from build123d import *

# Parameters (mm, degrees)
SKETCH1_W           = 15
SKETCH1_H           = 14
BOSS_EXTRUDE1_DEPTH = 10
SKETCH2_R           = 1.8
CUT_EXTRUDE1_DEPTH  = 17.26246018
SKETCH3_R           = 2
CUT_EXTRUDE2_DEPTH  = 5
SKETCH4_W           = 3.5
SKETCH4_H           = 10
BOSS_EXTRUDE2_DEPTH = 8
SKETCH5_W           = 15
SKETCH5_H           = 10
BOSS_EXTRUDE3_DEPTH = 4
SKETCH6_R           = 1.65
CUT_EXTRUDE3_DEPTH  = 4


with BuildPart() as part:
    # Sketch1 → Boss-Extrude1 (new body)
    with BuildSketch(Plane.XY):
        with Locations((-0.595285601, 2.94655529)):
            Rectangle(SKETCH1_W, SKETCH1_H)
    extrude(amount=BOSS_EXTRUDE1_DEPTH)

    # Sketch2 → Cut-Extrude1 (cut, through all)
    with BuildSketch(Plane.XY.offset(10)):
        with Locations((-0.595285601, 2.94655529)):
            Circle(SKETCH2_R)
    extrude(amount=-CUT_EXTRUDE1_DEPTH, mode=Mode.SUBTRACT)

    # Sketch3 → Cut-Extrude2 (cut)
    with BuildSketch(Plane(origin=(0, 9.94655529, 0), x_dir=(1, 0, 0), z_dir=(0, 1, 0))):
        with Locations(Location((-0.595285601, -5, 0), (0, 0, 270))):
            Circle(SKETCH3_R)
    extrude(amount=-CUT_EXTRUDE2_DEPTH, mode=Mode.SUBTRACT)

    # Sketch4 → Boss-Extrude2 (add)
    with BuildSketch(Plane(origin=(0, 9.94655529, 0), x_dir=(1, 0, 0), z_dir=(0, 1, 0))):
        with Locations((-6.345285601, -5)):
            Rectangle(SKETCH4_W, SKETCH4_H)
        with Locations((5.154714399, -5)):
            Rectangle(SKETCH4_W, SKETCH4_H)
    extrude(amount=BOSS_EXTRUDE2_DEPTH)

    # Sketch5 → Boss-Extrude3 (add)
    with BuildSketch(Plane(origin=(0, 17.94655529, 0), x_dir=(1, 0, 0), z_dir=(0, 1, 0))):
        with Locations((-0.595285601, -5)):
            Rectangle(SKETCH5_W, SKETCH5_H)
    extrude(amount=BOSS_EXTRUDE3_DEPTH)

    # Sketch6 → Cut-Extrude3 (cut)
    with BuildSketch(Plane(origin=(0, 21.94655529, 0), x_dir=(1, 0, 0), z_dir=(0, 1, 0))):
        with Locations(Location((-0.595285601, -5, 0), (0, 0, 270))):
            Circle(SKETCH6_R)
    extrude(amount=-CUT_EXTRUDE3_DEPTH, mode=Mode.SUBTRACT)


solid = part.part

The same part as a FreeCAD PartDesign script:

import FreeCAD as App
import Part
import Sketcher
from FreeCAD import Vector


def add_polygon(sketch, points):
    """Adds a closed chain of lines whose ends are joined by coincident constraints."""
    first, n = sketch.GeometryCount, len(points)
    for a, b in zip(points, points[1:] + points[:1]):
        sketch.addGeometry(Part.LineSegment(App.Vector(*a, 0), App.Vector(*b, 0)), False)
    for i in range(n):
        sketch.addConstraint(Sketcher.Constraint("Coincident", first + i, 2, first + (i + 1) % n, 1))

doc = App.newDocument("Part")
body = doc.addObject("PartDesign::Body", "Body")

# Sketch on XY plane
sketch1 = body.newObject("Sketcher::SketchObject", "Sketch")
sketch1.AttachmentSupport = (doc.getObject("XY_Plane"), [""])
sketch1.MapMode = "FlatFace"
add_polygon(sketch1, [(-8.095286, 9.946555), (-8.095286, -4.053445), (6.904714, -4.053445), (6.904714, 9.946555)])  # lines 0-3
sketch1.addConstraint(Sketcher.Constraint("Vertical", 0))
sketch1.addConstraint(Sketcher.Constraint("Horizontal", 1))
sketch1.addConstraint(Sketcher.Constraint("Vertical", 2))
sketch1.addConstraint(Sketcher.Constraint("Horizontal", 3))
sketch1.addConstraint(Sketcher.Constraint("DistanceX", 1, 1, 1, 2, 15.0))
sketch1.addConstraint(Sketcher.Constraint("DistanceY", 0, 2, 0, 1, 14.0))
sketch1.addConstraint(Sketcher.Constraint("DistanceX", 0, 2, -1, 1, 8.095286))
sketch1.addConstraint(Sketcher.Constraint("DistanceY", 0, 2, -1, 1, 4.053445))
pad1 = body.newObject("PartDesign::Pad", "Pad")
pad1.Profile = sketch1
pad1.Length = 10

# Sketch on XY plane
sketch2 = body.newObject("Sketcher::SketchObject", "Sketch001")
sketch2.AttachmentSupport = (doc.getObject("XY_Plane"), [""])
sketch2.MapMode = "FlatFace"
sketch2.AttachmentOffset = App.Placement(Vector(0, 0, 10), App.Rotation())
sketch2.addGeometry(Part.Circle(Vector(-0.595286, 2.946555, 0), Vector(0, 0, 1), 1.8), False)
sketch2.addConstraint(Sketcher.Constraint("Diameter", 0, 3.6))
sketch2.addConstraint(Sketcher.Constraint("DistanceX", 0, 3, -1, 1, 0.595286))
sketch2.addConstraint(Sketcher.Constraint("DistanceY", -1, 1, 0, 3, 2.946555))
pocket1 = body.newObject("PartDesign::Pocket", "Pocket")
pocket1.Profile = sketch2
pocket1.Type = "ThroughAll"

# Sketch on XZ plane
sketch3 = body.newObject("Sketcher::SketchObject", "Sketch002")
sketch3.AttachmentSupport = (doc.getObject("XZ_Plane"), [""])
sketch3.MapMode = "FlatFace"
sketch3.AttachmentOffset = App.Placement(Vector(0, 0, -9.946555), App.Rotation())
sketch3.addGeometry(Part.Circle(Vector(-0.595286, 5, 0), Vector(0, 0, 1), 2), False)
sketch3.addConstraint(Sketcher.Constraint("Diameter", 0, 4.0))
sketch3.addConstraint(Sketcher.Constraint("DistanceY", -1, 1, 0, 3, 5.0))
sketch3.addConstraint(Sketcher.Constraint("DistanceX", 0, 3, -1, 1, 0.595286))
pocket2 = body.newObject("PartDesign::Pocket", "Pocket001")
pocket2.Profile = sketch3
pocket2.Length = 5
pocket2.Reversed = True

# Sketch on XZ plane
sketch4 = body.newObject("Sketcher::SketchObject", "Sketch003")
sketch4.AttachmentSupport = (doc.getObject("XZ_Plane"), [""])
sketch4.MapMode = "FlatFace"
sketch4.AttachmentOffset = App.Placement(Vector(0, 0, -9.946555), App.Rotation())
add_polygon(sketch4, [(-8.095286, 0), (-8.095286, 10), (-4.595286, 10), (-4.595286, 0)])  # lines 0-3
add_polygon(sketch4, [(3.404714, 0), (3.404714, 10), (6.904714, 10), (6.904714, 0)])  # lines 4-7
sketch4.addConstraint(Sketcher.Constraint("Vertical", 0))
sketch4.addConstraint(Sketcher.Constraint("Horizontal", 1))
sketch4.addConstraint(Sketcher.Constraint("Vertical", 2))
sketch4.addConstraint(Sketcher.Constraint("Horizontal", 3))
sketch4.addConstraint(Sketcher.Constraint("Vertical", 4))
sketch4.addConstraint(Sketcher.Constraint("Horizontal", 5))
sketch4.addConstraint(Sketcher.Constraint("Vertical", 6))
sketch4.addConstraint(Sketcher.Constraint("Horizontal", 7))
sketch4.addConstraint(Sketcher.Constraint("PointOnObject", 2, 2, -1))
sketch4.addConstraint(Sketcher.Constraint("PointOnObject", 6, 2, -1))
sketch4.addConstraint(Sketcher.Constraint("Horizontal", 1, 2, 4, 2))
sketch4.addConstraint(Sketcher.Constraint("Equal", 3, 5))
sketch4.addConstraint(Sketcher.Constraint("DistanceY", 0, 1, 0, 2, 10.0))
sketch4.addConstraint(Sketcher.Constraint("DistanceX", 1, 1, 1, 2, 3.5))
sketch4.addConstraint(Sketcher.Constraint("DistanceX", 1, 2, 4, 2, 8.0))
sketch4.addConstraint(Sketcher.Constraint("DistanceX", 0, 2, -1, 1, 8.095286))
pad2 = body.newObject("PartDesign::Pad", "Pad001")
pad2.Profile = sketch4
pad2.Length = 8
pad2.Reversed = True

# Sketch on XZ plane
sketch5 = body.newObject("Sketcher::SketchObject", "Sketch004")
sketch5.AttachmentSupport = (doc.getObject("XZ_Plane"), [""])
sketch5.MapMode = "FlatFace"
sketch5.AttachmentOffset = App.Placement(Vector(0, 0, -17.946555), App.Rotation())
add_polygon(sketch5, [(-8.095286, 0), (-8.095286, 10), (6.904714, 10), (6.904714, 0)])  # lines 0-3
sketch5.addConstraint(Sketcher.Constraint("Vertical", 0))
sketch5.addConstraint(Sketcher.Constraint("Horizontal", 1))
sketch5.addConstraint(Sketcher.Constraint("Vertical", 2))
sketch5.addConstraint(Sketcher.Constraint("Horizontal", 3))
sketch5.addConstraint(Sketcher.Constraint("PointOnObject", 2, 2, -1))
sketch5.addConstraint(Sketcher.Constraint("DistanceX", 1, 1, 1, 2, 15.0))
sketch5.addConstraint(Sketcher.Constraint("DistanceY", 0, 1, 0, 2, 10.0))
sketch5.addConstraint(Sketcher.Constraint("DistanceX", 0, 2, -1, 1, 8.095286))
pad3 = body.newObject("PartDesign::Pad", "Pad002")
pad3.Profile = sketch5
pad3.Length = 4
pad3.Reversed = True

# Sketch on XZ plane
sketch6 = body.newObject("Sketcher::SketchObject", "Sketch005")
sketch6.AttachmentSupport = (doc.getObject("XZ_Plane"), [""])
sketch6.MapMode = "FlatFace"
sketch6.AttachmentOffset = App.Placement(Vector(0, 0, -21.946555), App.Rotation())
sketch6.addGeometry(Part.Circle(Vector(-0.595286, 5, 0), Vector(0, 0, 1), 1.65), False)
sketch6.addConstraint(Sketcher.Constraint("Diameter", 0, 3.3))
sketch6.addConstraint(Sketcher.Constraint("DistanceY", -1, 1, 0, 3, 5.0))
sketch6.addConstraint(Sketcher.Constraint("DistanceX", 0, 3, -1, 1, 0.595286))
pocket3 = body.newObject("PartDesign::Pocket", "Pocket002")
pocket3.Profile = sketch6
pocket3.Length = 4
pocket3.Reversed = True

doc.recompute()
